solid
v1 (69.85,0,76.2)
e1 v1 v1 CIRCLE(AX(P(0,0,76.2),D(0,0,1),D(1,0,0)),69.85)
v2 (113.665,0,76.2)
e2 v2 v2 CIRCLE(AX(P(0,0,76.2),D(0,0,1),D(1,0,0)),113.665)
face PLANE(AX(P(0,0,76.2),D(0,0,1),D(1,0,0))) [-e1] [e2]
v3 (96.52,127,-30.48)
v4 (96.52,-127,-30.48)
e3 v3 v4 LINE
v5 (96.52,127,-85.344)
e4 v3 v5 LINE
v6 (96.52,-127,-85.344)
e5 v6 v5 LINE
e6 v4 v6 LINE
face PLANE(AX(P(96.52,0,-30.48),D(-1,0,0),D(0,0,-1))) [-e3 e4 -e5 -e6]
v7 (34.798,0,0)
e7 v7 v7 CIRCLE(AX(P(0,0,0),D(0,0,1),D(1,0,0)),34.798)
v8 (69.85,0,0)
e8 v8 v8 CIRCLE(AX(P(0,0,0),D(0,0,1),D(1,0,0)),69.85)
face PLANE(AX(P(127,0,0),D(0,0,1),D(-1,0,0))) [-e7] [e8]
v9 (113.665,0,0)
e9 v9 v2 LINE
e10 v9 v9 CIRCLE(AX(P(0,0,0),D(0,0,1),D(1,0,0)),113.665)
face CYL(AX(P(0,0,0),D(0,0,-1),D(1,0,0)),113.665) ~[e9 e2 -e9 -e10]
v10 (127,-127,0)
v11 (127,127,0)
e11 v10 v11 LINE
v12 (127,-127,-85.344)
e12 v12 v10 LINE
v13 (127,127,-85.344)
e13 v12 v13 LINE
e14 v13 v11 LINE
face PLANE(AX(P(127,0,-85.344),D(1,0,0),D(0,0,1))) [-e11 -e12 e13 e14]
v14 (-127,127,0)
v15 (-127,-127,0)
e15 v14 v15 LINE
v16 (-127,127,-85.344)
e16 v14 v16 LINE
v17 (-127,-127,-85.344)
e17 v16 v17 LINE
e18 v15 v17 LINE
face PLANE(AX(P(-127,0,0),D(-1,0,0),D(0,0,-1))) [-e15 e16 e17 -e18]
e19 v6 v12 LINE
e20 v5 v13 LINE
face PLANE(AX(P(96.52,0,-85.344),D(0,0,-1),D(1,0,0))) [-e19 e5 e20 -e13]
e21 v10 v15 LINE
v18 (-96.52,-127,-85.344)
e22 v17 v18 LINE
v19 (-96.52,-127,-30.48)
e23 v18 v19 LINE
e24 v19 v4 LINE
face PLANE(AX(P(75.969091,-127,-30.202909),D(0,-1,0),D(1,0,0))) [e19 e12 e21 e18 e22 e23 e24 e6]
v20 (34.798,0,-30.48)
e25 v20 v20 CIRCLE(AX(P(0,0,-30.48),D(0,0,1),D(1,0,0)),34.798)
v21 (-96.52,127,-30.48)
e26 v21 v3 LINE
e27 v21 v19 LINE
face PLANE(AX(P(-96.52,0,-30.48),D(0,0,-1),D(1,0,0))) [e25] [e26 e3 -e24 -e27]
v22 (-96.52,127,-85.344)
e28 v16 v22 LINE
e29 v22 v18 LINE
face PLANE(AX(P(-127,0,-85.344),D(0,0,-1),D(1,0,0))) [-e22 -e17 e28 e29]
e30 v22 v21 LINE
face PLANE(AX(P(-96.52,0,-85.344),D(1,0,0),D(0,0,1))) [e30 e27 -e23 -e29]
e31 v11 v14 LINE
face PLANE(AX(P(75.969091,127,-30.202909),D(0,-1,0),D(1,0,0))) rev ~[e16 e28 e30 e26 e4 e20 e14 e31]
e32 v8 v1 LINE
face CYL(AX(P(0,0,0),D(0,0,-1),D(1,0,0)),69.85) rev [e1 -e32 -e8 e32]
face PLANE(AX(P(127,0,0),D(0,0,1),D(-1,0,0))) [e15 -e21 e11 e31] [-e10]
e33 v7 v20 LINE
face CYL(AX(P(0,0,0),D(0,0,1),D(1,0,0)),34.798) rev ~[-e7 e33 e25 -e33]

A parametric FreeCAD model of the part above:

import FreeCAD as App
import Part
import Sketcher

V = App.Vector
Q = App.Units.Quantity


def add_polygon(sketch, points):
    """Adds a closed chain of lines whose ends are joined by coincident constraints."""
    first, n = sketch.GeometryCount, len(points)
    for a, b in zip(points, points[1:] + points[:1]):
        sketch.addGeometry(Part.LineSegment(App.Vector(*a, 0), App.Vector(*b, 0)), False)
    for i in range(n):
        sketch.addConstraint(Sketcher.Constraint("Coincident", first + i, 2, first + (i + 1) % n, 1))

doc = App.newDocument("Part")
body = doc.addObject("PartDesign::Body", "Body")

sketch1 = body.newObject("Sketcher::SketchObject", "Sketch")
sketch1.AttachmentSupport = (doc.getObject("XZ_Plane"), [""])
sketch1.MapMode = "FlatFace"
add_polygon(sketch1, [(127, 0), (-127, 0), (-127, -85), (-97, -85), (-97, -30), (97, -30), (97, -85), (127, -85)])
sketch1.addConstraint(Sketcher.Constraint("Horizontal", 0))
sketch1.addConstraint(Sketcher.Constraint("Vertical", 1))
sketch1.addConstraint(Sketcher.Constraint("Horizontal", 2))
sketch1.addConstraint(Sketcher.Constraint("Vertical", 3))
sketch1.addConstraint(Sketcher.Constraint("Horizontal", 4))
sketch1.addConstraint(Sketcher.Constraint("Vertical", 5))
sketch1.addConstraint(Sketcher.Constraint("Horizontal", 6))
sketch1.addConstraint(Sketcher.Constraint("Vertical", 7))
sketch1.addConstraint(Sketcher.Constraint("Symmetric", 0, 2, 7, 2, -1, 1))
sketch1.addConstraint(Sketcher.Constraint("Symmetric", 2, 2, 5, 2, -2))
sketch1.addConstraint(Sketcher.Constraint("DistanceX", 0, 2, 0, 1, Q("10 in")))
sketch1.addConstraint(Sketcher.Constraint("DistanceX", 2, 1, 2, 2, Q("1.2 in")))
sketch1.addConstraint(Sketcher.Constraint("DistanceY", 1, 2, 1, 1, Q("3.36 in")))
sketch1.addConstraint(Sketcher.Constraint("DistanceY", 3, 1, 3, 2, Q("2.16 in")))
pad1 = body.newObject("PartDesign::Pad", "Pad")
pad1.Profile = sketch1
pad1.Length = Q("10 in")
pad1.Midplane = True

sketch2 = body.newObject("Sketcher::SketchObject", "Sketch001")
sketch2.AttachmentSupport = (doc.getObject("XY_Plane"), [""])
sketch2.MapMode = "FlatFace"
sketch2.addGeometry(Part.Circle(V(0, 0, 0), V(0, 0, 1), 114), False)
sketch2.addGeometry(Part.Circle(V(0, 0, 0), V(0, 0, 1), 70), False)
sketch2.addConstraint(Sketcher.Constraint("Coincident", 0, 3, -1, 1))
sketch2.addConstraint(Sketcher.Constraint("Coincident", 1, 3, -1, 1))
sketch2.addConstraint(Sketcher.Constraint("Diameter", 1, Q("5.5 in")))
sketch2.addConstraint(Sketcher.Constraint("Diameter", 0, Q("8.95 in")))
pad2 = body.newObject("PartDesign::Pad", "Pad001")
pad2.Profile = sketch2
pad2.Length = Q("3 in")

sketch3 = body.newObject("Sketcher::SketchObject", "Sketch002")
sketch3.AttachmentSupport = (doc.getObject("XY_Plane"), [""])
sketch3.MapMode = "FlatFace"
sketch3.addGeometry(Part.Circle(V(0, 0, 0), V(0, 0, 1), 35), False)
sketch3.addConstraint(Sketcher.Constraint("Coincident", 0, 3, -1, 1))
sketch3.addConstraint(Sketcher.Constraint("Diameter", 0, Q("2.74 in")))
pocket1 = body.newObject("PartDesign::Pocket", "Pocket")
pocket1.Profile = sketch3
pocket1.Length = Q("4 in")

doc.recompute()
